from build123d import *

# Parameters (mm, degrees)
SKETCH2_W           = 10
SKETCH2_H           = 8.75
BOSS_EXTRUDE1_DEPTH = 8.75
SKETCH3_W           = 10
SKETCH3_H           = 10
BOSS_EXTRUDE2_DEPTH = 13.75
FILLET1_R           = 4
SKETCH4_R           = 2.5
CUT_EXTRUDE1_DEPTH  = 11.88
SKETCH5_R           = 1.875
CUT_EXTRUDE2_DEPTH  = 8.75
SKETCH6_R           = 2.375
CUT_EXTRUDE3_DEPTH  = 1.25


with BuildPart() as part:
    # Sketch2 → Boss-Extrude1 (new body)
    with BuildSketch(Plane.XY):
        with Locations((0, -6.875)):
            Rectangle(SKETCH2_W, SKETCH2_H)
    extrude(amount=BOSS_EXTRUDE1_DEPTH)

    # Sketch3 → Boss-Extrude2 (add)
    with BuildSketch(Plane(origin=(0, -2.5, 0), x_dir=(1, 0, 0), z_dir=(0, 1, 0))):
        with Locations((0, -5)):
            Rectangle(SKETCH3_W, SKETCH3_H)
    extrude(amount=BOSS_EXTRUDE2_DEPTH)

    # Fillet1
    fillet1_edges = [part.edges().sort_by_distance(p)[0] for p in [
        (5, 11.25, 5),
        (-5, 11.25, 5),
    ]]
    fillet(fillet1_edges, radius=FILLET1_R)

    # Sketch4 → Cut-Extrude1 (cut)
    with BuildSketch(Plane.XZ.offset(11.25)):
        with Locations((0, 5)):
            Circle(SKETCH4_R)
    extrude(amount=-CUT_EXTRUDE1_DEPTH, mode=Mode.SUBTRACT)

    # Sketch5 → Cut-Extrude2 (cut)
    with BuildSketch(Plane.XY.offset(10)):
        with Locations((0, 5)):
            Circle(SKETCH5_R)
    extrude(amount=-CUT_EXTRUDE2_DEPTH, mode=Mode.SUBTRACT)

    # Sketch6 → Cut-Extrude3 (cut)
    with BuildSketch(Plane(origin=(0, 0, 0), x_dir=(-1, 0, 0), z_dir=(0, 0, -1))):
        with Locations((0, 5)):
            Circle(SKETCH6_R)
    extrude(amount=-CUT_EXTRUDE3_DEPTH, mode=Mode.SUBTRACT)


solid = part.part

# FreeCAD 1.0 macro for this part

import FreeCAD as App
import Part
import Sketcher
from FreeCAD import Vector


def edges_at(feature, points):
    """Names of the edges that pass closest to the given points."""
    edges = feature.Shape.Edges
    near = lambda p: min(range(len(edges)), key=lambda i: edges[i].distToShape(Part.Vertex(*p))[0])
    return sorted({f"Edge{near(p) + 1}" for p in points})

doc = App.newDocument("Part")
params = doc.addObject("Spreadsheet::Sheet", "Params")
for row, (alias, value) in enumerate([
    ("sketch1_width", "10 mm"),
    ("sketch1_height", "8.75 mm"),
    ("pad1_length", "8.75 mm"),
    ("sketch2_width", "10 mm"),
    ("pad2_length", "13.75 mm"),
    ("fillet_radius", "4 mm"),
    ("sketch3_diameter", "5 mm"),
    ("pocket1_length", "11.88 mm"),
    ("sketch4_diameter", "3.75 mm"),
    ("pocket2_length", "8.75 mm"),
    ("sketch5_diameter", "4.75 mm"),
    ("pocket3_length", "1.25 mm"),
], start=1):
    params.set(f"A{row}", alias)
    params.set(f"B{row}", "=" + value)
    params.setAlias(f"B{row}", alias)

body = doc.addObject("PartDesign::Body", "Body")

# Sketch on XY plane
sketch1 = doc.addObject("Sketcher::SketchObject", "Sketch")
body.addObject(sketch1)
sketch1.AttachmentSupport = (doc.XY_Plane, [""])
sketch1.MapMode = "FlatFace"
sketch1.addGeometry([
    Part.LineSegment(Vector(-5, -2, 0), Vector(-5, -11, 0)),
    Part.LineSegment(Vector(-5, -11, 0), Vector(5, -11, 0)),
    Part.LineSegment(Vector(5, -11, 0), Vector(5, -2, 0)),
    Part.LineSegment(Vector(5, -2, 0), Vector(-5, -2, 0)),
], False)
sketch1.addConstraint([
    Sketcher.Constraint("Coincident", 0, 2, 1, 1),
    Sketcher.Constraint("Coincident", 1, 2, 2, 1),
    Sketcher.Constraint("Coincident", 2, 2, 3, 1),
    Sketcher.Constraint("Coincident", 3, 2, 0, 1),
    Sketcher.Constraint("Vertical", 0),
    Sketcher.Constraint("Horizontal", 1),
    Sketcher.Constraint("Vertical", 2),
    Sketcher.Constraint("Horizontal", 3),
    Sketcher.Constraint("DistanceX", 1, 1, 1, 2, 10.0),
    Sketcher.Constraint("DistanceX", 0, 2, -1, 1, 5.0),
    Sketcher.Constraint("DistanceY", 0, 2, 0, 1, 8.75),
    Sketcher.Constraint("DistanceY", 2, 2, -1, 1, 2.5),
])
sketch1.setExpression("Constraints[8]", "Params.sketch1_width")
sketch1.setExpression("Constraints[10]", "Params.sketch1_height")
pad1 = doc.addObject("PartDesign::Pad", "Pad")
body.addObject(pad1)
pad1.Profile = sketch1
pad1.setExpression("Length", "Params.pad1_length")

# Sketch on XZ plane
sketch2 = doc.addObject("Sketcher::SketchObject", "Sketch001")
body.addObject(sketch2)
sketch2.AttachmentSupport = (doc.XZ_Plane, [""])
sketch2.MapMode = "FlatFace"
sketch2.AttachmentOffset = App.Placement(Vector(0, 0, 2.5), App.Rotation())
sketch2.addGeometry([
    Part.LineSegment(Vector(-5, 0, 0), Vector(-5, 10, 0)),
    Part.LineSegment(Vector(-5, 10, 0), Vector(5, 10, 0)),
    Part.LineSegment(Vector(5, 10, 0), Vector(5, 0, 0)),
    Part.LineSegment(Vector(5, 0, 0), Vector(-5, 0, 0)),
], False)
sketch2.addConstraint([
    Sketcher.Constraint("Coincident", 0, 2, 1, 1),
    Sketcher.Constraint("Coincident", 1, 2, 2, 1),
    Sketcher.Constraint("Coincident", 2, 2, 3, 1),
    Sketcher.Constraint("Coincident", 3, 2, 0, 1),
    Sketcher.Constraint("Vertical", 0),
    Sketcher.Constraint("Horizontal", 1),
    Sketcher.Constraint("Vertical", 2),
    Sketcher.Constraint("Horizontal", 3),
    Sketcher.Constraint("Symmetric", 2, 2, 3, 2, -1, 1),
    Sketcher.Constraint("Equal", 3, 0),
    Sketcher.Constraint("DistanceX", 1, 1, 1, 2, 10.0),
])
sketch2.setExpression("Constraints[10]", "Params.sketch2_width")
pad2 = doc.addObject("PartDesign::Pad", "Pad001")
body.addObject(pad2)
pad2.Profile = sketch2
pad2.setExpression("Length", "Params.pad2_length")
pad2.Reversed = True
doc.recompute()

fillet = doc.addObject("PartDesign::Fillet", "Fillet")
body.addObject(fillet)
fillet.Base = (pad2, edges_at(pad2, [(5, 11.25, 5), (-5, 11.25, 5)]))
fillet.setExpression("Radius", "Params.fillet_radius")

# Sketch on XZ plane
sketch3 = doc.addObject("Sketcher::SketchObject", "Sketch002")
body.addObject(sketch3)
sketch3.AttachmentSupport = (doc.XZ_Plane, [""])
sketch3.MapMode = "FlatFace"
sketch3.AttachmentOffset = App.Placement(Vector(0, 0, 11.25), App.Rotation())
sketch3.addGeometry(Part.Circle(Vector(0, 5, 0), Vector(0, 0, 1), 2.5), False)
sketch3.addConstraint([
    Sketcher.Constraint("PointOnObject", 0, 3, -2),
    Sketcher.Constraint("Diameter", 0, 5.0),
    Sketcher.Constraint("DistanceY", -1, 1, 0, 3, 5.0),
])
sketch3.setExpression("Constraints[1]", "Params.sketch3_diameter")
pocket1 = doc.addObject("PartDesign::Pocket", "Pocket")
body.addObject(pocket1)
pocket1.Profile = sketch3
pocket1.setExpression("Length", "Params.pocket1_length")

# Sketch on XY plane
sketch4 = doc.addObject("Sketcher::SketchObject", "Sketch003")
body.addObject(sketch4)
sketch4.AttachmentSupport = (doc.XY_Plane, [""])
sketch4.MapMode = "FlatFace"
sketch4.AttachmentOffset = App.Placement(Vector(0, 0, 10), App.Rotation())
sketch4.addGeometry(Part.Circle(Vector(0, 5, 0), Vector(0, 0, 1), 1.9), False)
sketch4.addConstraint([
    Sketcher.Constraint("PointOnObject", 0, 3, -2),
    Sketcher.Constraint("Diameter", 0, 3.75),
    Sketcher.Constraint("DistanceY", -1, 1, 0, 3, 5.0),
])
sketch4.setExpression("Constraints[1]", "Params.sketch4_diameter")
pocket2 = doc.addObject("PartDesign::Pocket", "Pocket001")
body.addObject(pocket2)
pocket2.Profile = sketch4
pocket2.setExpression("Length", "Params.pocket2_length")

# Sketch on XY plane
sketch5 = doc.addObject("Sketcher::SketchObject", "Sketch004")
body.addObject(sketch5)
sketch5.AttachmentSupport = (doc.XY_Plane, [""])
sketch5.MapMode = "FlatFace"
sketch5.addGeometry(Part.Circle(Vector(0, 5, 0), Vector(0, 0, 1), 2.4), False)
sketch5.addConstraint([
    Sketcher.Constraint("PointOnObject", 0, 3, -2),
    Sketcher.Constraint("Diameter", 0, 4.75),
    Sketcher.Constraint("DistanceY", -1, 1, 0, 3, 5.0),
])
sketch5.setExpression("Constraints[1]", "Params.sketch5_diameter")
pocket3 = doc.addObject("PartDesign::Pocket", "Pocket002")
body.addObject(pocket3)
pocket3.Profile = sketch5
pocket3.setExpression("Length", "Params.pocket3_length")
pocket3.Reversed = True

doc.recompute()
